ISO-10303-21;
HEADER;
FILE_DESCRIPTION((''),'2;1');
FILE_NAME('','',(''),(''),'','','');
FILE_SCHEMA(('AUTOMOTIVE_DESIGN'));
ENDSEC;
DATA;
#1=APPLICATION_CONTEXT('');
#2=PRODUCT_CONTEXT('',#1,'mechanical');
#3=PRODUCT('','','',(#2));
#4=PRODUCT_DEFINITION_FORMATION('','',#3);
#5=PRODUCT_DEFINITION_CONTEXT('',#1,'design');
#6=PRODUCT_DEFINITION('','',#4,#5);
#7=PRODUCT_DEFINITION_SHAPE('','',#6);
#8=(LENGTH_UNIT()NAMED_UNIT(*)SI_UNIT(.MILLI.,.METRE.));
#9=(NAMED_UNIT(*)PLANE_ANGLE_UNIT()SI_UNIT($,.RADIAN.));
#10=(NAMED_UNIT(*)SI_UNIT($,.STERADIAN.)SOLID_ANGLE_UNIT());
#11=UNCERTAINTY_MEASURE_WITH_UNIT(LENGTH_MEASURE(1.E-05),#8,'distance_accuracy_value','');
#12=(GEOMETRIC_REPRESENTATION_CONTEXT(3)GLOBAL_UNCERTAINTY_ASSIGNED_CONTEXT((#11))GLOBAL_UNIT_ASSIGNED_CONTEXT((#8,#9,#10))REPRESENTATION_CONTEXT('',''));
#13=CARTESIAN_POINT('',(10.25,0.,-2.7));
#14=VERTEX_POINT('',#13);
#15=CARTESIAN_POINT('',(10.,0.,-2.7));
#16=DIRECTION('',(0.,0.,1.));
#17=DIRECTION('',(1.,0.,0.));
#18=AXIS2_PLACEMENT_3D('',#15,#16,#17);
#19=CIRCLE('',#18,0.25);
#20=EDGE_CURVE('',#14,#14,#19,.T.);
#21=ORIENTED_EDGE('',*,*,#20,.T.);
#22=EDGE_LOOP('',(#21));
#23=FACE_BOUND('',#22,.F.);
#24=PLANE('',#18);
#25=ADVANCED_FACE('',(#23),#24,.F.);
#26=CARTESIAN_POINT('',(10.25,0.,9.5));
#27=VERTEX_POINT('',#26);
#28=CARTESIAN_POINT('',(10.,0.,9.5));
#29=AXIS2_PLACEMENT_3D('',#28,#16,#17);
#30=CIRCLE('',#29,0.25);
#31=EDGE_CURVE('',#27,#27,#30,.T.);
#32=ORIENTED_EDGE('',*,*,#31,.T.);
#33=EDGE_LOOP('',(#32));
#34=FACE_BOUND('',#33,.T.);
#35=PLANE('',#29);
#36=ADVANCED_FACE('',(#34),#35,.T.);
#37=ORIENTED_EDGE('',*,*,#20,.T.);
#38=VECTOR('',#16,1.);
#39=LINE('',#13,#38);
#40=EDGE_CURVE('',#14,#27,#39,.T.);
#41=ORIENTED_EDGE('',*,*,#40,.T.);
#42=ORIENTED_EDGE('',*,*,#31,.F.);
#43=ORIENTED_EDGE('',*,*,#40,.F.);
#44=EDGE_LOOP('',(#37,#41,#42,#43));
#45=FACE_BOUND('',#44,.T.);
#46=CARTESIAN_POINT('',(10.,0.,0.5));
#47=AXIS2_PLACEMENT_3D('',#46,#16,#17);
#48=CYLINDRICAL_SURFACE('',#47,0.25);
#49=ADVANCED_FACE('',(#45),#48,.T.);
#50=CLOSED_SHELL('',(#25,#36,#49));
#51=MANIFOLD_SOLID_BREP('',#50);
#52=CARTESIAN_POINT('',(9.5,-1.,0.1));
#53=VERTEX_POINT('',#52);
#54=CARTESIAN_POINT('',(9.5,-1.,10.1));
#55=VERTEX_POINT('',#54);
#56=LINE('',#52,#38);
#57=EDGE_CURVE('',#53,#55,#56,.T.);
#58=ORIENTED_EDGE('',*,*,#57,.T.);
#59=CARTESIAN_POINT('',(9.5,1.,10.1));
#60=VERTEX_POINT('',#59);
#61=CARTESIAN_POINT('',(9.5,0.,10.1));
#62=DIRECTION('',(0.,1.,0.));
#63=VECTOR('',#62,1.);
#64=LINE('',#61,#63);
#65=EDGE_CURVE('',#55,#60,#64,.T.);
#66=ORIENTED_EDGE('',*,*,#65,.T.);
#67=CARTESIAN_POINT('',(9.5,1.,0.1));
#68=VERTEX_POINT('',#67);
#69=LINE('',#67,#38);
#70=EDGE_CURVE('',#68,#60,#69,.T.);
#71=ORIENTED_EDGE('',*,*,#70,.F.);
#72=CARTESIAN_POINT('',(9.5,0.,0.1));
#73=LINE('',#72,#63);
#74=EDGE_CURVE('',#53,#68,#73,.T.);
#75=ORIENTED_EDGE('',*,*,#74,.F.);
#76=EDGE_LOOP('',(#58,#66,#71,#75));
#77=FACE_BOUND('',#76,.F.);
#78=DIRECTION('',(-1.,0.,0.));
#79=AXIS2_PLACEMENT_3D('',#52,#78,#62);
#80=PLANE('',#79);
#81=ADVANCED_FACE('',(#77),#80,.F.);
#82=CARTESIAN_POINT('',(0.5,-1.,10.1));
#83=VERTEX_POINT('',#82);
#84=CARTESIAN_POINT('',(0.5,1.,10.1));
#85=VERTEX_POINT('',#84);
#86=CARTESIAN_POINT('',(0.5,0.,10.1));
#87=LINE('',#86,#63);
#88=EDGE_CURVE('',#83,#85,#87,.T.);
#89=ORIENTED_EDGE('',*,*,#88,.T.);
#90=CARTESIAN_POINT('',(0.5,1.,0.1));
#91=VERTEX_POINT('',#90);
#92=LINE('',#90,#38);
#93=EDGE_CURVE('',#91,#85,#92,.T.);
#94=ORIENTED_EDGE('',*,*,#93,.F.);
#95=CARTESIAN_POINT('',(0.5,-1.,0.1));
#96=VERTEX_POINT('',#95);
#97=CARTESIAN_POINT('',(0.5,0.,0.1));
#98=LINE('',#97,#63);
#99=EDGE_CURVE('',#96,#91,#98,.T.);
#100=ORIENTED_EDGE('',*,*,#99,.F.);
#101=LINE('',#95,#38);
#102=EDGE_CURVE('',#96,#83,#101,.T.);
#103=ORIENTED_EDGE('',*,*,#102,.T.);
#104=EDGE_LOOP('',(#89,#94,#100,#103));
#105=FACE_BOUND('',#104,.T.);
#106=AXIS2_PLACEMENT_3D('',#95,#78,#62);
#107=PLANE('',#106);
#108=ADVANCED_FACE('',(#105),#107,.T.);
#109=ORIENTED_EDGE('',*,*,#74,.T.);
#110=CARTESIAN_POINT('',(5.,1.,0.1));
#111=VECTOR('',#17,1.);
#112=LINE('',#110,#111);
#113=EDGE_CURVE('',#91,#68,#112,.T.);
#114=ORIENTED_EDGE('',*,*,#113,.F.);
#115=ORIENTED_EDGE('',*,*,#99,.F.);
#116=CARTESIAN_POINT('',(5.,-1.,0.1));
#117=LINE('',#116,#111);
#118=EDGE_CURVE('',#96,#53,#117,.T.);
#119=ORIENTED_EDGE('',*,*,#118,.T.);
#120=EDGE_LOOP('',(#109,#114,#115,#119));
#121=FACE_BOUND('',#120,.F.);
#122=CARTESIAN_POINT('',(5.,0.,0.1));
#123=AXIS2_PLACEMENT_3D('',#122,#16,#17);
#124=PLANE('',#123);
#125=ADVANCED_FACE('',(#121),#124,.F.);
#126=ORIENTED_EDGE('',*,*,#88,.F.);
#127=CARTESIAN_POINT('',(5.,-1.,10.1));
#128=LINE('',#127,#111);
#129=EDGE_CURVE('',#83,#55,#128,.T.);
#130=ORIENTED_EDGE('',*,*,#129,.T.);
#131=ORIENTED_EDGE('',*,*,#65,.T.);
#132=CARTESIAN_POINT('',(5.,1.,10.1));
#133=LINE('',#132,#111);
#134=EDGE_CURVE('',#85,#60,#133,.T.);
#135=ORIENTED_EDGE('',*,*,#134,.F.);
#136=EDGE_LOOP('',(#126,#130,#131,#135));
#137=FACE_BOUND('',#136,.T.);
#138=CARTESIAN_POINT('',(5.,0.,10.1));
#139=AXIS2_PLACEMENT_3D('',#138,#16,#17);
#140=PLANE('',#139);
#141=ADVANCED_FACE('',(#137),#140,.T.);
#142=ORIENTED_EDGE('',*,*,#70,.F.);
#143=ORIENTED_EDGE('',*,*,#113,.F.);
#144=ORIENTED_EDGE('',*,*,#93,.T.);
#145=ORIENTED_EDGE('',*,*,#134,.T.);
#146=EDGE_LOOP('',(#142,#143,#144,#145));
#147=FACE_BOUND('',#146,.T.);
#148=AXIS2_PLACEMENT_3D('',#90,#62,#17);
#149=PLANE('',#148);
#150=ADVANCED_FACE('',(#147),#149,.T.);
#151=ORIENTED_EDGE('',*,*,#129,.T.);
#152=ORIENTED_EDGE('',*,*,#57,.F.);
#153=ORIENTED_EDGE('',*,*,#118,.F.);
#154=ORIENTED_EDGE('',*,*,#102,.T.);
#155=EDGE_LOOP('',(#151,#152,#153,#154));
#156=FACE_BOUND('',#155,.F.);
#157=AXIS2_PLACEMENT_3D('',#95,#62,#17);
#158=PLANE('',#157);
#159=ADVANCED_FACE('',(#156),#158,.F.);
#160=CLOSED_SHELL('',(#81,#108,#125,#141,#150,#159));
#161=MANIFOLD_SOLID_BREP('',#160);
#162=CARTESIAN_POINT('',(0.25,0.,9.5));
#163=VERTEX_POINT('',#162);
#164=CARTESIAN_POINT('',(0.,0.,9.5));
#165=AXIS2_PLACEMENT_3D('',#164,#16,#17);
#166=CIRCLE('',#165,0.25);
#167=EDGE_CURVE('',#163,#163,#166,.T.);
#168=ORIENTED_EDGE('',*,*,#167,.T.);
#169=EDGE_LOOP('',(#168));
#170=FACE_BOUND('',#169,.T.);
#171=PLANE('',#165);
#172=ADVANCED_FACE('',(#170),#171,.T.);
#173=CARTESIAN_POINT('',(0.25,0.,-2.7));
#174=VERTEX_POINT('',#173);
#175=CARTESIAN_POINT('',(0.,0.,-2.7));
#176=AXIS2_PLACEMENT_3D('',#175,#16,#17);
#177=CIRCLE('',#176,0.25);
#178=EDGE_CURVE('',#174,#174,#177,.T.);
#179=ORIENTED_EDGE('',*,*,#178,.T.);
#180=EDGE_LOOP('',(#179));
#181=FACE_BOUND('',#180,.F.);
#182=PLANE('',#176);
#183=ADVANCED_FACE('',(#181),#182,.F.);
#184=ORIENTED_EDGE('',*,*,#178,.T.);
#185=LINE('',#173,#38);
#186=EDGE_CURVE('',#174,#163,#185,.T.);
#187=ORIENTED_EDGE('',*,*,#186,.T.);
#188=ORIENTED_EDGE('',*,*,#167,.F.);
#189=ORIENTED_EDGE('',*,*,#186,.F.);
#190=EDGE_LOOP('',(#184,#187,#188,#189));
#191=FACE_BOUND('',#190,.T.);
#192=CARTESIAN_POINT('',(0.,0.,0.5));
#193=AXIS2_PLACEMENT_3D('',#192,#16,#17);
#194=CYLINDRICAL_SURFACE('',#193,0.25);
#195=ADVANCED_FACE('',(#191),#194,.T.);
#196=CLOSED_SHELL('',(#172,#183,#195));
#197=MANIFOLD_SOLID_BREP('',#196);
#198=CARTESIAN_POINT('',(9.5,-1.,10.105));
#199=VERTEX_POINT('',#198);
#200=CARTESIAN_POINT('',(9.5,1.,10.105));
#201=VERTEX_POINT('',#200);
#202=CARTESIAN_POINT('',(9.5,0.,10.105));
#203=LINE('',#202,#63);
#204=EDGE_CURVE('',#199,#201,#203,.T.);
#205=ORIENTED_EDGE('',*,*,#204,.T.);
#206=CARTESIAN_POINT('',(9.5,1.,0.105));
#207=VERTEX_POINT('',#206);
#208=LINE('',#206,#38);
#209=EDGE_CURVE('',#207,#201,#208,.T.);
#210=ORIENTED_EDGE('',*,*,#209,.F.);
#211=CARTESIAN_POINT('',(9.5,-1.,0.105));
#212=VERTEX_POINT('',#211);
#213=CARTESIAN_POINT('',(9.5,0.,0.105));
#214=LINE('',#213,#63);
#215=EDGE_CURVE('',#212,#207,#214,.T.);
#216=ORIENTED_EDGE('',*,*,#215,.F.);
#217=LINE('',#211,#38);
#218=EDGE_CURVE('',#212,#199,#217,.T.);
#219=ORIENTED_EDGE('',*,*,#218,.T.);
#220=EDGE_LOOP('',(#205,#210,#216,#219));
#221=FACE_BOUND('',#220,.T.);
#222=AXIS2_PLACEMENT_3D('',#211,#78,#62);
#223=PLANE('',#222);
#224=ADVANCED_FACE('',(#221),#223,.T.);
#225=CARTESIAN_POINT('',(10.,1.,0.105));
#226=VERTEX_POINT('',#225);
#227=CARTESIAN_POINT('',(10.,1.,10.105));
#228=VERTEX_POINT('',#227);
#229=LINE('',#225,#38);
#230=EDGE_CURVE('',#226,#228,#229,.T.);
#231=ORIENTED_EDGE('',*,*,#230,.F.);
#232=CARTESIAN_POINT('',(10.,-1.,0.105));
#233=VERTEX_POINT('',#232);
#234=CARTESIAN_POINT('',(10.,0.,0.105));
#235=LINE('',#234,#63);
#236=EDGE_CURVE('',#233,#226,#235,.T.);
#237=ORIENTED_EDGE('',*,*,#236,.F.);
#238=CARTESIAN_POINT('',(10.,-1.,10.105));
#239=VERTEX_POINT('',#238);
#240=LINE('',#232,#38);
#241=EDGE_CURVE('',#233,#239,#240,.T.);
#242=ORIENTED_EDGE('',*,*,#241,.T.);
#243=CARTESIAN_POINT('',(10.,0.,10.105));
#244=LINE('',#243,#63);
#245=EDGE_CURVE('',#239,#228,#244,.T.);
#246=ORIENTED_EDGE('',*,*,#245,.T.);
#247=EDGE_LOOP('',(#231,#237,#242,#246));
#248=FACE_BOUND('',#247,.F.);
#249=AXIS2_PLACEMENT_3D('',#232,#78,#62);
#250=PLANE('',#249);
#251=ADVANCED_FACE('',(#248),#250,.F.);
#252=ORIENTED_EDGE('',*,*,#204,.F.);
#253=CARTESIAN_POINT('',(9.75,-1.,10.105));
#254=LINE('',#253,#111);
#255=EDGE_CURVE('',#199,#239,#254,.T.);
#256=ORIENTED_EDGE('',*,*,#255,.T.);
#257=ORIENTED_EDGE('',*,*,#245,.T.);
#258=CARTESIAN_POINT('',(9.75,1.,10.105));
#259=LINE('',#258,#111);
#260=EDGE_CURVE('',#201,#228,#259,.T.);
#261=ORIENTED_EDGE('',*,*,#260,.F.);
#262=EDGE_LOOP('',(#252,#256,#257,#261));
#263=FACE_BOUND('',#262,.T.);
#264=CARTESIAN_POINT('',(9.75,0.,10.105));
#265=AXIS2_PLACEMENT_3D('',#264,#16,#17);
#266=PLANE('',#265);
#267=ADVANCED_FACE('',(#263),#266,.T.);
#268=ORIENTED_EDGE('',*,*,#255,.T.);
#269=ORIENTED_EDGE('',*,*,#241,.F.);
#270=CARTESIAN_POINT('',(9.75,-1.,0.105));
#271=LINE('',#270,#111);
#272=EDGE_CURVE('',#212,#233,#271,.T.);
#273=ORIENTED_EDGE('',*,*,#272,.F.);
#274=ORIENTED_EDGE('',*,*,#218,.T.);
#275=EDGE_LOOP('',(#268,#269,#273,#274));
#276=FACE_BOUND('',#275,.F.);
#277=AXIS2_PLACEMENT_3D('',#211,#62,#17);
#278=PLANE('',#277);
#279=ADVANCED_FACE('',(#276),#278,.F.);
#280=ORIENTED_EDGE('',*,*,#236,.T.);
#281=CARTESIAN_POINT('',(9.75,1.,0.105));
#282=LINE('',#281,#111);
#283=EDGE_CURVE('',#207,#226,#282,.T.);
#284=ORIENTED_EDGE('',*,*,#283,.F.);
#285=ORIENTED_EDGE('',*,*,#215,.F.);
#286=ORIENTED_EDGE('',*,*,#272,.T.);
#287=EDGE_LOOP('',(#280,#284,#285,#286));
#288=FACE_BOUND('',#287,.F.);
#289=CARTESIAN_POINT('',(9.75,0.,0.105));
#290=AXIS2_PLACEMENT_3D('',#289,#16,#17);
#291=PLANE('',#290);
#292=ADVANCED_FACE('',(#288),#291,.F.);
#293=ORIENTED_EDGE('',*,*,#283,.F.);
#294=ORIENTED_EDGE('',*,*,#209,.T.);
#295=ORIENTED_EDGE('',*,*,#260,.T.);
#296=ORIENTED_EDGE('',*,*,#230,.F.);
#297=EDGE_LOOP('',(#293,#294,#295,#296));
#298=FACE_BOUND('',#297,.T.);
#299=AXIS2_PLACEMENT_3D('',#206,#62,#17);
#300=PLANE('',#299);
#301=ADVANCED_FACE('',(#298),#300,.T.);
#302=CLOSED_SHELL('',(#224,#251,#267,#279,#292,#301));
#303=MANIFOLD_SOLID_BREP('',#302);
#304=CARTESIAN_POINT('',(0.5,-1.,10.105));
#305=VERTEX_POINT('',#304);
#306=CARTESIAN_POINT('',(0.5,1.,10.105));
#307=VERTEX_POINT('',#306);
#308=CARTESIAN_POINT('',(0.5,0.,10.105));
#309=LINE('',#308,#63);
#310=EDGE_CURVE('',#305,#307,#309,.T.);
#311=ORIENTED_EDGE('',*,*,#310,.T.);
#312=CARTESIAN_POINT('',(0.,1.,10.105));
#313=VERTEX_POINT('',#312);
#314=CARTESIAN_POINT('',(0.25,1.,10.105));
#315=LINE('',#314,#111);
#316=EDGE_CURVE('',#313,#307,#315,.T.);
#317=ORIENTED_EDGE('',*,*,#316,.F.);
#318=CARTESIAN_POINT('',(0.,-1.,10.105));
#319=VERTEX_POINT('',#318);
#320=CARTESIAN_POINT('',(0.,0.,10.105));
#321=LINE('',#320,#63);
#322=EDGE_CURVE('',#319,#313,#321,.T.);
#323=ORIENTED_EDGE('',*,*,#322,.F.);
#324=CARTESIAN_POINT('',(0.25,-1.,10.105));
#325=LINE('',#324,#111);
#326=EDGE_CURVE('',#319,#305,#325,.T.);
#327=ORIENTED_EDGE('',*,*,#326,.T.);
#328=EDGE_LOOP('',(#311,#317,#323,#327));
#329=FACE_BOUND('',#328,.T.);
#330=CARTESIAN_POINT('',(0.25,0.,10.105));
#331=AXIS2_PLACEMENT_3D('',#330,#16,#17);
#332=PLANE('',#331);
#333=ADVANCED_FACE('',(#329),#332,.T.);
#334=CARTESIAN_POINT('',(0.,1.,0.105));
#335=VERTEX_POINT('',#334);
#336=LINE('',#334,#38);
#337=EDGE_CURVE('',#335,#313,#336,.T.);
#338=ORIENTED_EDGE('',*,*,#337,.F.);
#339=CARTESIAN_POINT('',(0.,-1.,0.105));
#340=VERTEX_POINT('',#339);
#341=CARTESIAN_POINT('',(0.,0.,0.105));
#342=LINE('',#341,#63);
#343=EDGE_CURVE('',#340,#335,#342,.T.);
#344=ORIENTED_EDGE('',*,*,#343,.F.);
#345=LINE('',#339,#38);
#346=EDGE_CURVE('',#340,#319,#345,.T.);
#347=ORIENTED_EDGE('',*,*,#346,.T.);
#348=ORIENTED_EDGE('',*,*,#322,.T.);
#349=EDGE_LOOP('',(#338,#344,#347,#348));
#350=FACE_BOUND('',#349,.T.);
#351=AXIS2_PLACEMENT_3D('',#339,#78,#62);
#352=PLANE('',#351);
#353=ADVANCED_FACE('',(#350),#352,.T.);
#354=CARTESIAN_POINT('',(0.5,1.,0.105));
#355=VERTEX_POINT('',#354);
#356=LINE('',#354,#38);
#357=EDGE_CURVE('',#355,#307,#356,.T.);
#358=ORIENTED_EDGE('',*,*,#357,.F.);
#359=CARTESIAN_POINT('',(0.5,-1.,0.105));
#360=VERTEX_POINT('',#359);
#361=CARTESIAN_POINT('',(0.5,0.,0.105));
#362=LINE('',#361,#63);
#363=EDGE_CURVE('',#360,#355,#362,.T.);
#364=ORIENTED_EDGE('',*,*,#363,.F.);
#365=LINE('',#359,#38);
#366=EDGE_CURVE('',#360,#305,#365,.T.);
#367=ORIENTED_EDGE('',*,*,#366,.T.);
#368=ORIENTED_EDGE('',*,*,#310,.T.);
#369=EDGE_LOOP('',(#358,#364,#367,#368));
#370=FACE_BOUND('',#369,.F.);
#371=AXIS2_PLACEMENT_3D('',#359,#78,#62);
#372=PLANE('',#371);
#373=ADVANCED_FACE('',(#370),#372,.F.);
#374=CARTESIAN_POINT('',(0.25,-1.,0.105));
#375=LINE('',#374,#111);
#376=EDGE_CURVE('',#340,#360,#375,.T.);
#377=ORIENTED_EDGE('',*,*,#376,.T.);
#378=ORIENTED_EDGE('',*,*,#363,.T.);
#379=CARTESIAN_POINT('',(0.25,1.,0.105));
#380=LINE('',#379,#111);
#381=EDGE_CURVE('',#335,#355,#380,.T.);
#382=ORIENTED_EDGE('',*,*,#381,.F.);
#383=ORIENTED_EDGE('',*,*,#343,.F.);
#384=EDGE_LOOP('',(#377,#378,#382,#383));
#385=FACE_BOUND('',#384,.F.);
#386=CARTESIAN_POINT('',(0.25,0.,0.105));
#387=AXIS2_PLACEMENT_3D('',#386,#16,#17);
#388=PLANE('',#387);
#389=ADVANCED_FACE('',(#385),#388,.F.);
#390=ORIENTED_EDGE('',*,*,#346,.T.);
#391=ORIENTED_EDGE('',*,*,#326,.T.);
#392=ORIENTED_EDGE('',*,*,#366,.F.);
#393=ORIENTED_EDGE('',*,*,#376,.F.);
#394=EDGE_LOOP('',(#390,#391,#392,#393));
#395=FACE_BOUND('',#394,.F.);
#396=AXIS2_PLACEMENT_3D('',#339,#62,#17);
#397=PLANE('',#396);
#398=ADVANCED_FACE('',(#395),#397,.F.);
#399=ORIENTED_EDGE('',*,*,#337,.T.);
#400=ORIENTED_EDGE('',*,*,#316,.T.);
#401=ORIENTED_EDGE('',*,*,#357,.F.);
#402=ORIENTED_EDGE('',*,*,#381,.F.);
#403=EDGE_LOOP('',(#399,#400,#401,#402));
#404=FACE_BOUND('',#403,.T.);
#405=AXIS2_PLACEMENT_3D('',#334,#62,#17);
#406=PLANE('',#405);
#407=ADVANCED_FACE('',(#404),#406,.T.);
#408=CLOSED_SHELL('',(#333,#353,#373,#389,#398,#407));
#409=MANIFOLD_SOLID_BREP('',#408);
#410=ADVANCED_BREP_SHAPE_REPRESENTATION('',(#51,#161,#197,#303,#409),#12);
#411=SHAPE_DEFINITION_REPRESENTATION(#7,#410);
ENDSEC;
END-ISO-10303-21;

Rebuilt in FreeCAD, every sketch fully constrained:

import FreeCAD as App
import Part
import Sketcher
Q = App.Units.Quantity


def add_polygon(sketch, points):
    """Adds a closed chain of lines whose ends are joined by coincident constraints."""
    first, n = sketch.GeometryCount, len(points)
    for a, b in zip(points, points[1:] + points[:1]):
        sketch.addGeometry(Part.LineSegment(App.Vector(*a, 0), App.Vector(*b, 0)), False)
    for i in range(n):
        sketch.addConstraint(Sketcher.Constraint("Coincident", first + i, 2, first + (i + 1) % n, 1))

doc = App.newDocument("Part")
body = doc.addObject("PartDesign::Body", "Body")

# Sketch on XY plane
sketch1 = doc.addObject("Sketcher::SketchObject", "Sketch")
body.addObject(sketch1)
sketch1.AttachmentSupport = (doc.XY_Plane, [""])
sketch1.MapMode = "FlatFace"
sketch1.AttachmentOffset = App.Placement(App.Vector(0, 0, 0.1), App.Rotation())
add_polygon(sketch1, [(0.5, 1), (0.5, -1), (9.5, -1), (9.5, 1)])  # lines 0-3
sketch1.addConstraint(Sketcher.Constraint("Vertical", 0))
sketch1.addConstraint(Sketcher.Constraint("Horizontal", 1))
sketch1.addConstraint(Sketcher.Constraint("Vertical", 2))
sketch1.addConstraint(Sketcher.Constraint("Horizontal", 3))
sketch1.addConstraint(Sketcher.Constraint("DistanceX", 1, 1, 1, 2, Q("9 mm")))
sketch1.addConstraint(Sketcher.Constraint("DistanceY", 0, 2, 0, 1, Q("2 mm")))
sketch1.addConstraint(Sketcher.Constraint("DistanceY", 0, 2, -1, 1, Q("1 mm")))
sketch1.addConstraint(Sketcher.Constraint("DistanceX", -1, 1, 0, 2, Q("0.5 mm")))
pad1 = doc.addObject("PartDesign::Pad", "Pad")
body.addObject(pad1)
pad1.Profile = sketch1
pad1.Length = 10
body2 = doc.addObject("PartDesign::Body", "Body001")
body2.AllowCompound = True

# Sketch on XY plane
sketch2 = doc.addObject("Sketcher::SketchObject", "Sketch001")
body2.addObject(sketch2)
sketch2.AttachmentSupport = (doc.getObject("XY_Plane001"), [""])
sketch2.MapMode = "FlatFace"
sketch2.AttachmentOffset = App.Placement(App.Vector(0, 0, 0.5), App.Rotation())
sketch2.addGeometry(Part.Circle(App.Vector(0, 0, 0), App.Vector(0, 0, 1), 0.25), False)
sketch2.addGeometry(Part.Circle(App.Vector(10, 0, 0), App.Vector(0, 0, 1), 0.25), False)
sketch2.addConstraint(Sketcher.Constraint("Coincident", 0, 3, -1, 1))
sketch2.addConstraint(Sketcher.Constraint("Equal", 0, 1))
sketch2.addConstraint(Sketcher.Constraint("PointOnObject", 1, 3, -1))
sketch2.addConstraint(Sketcher.Constraint("Diameter", 0, Q("0.5 mm")))
sketch2.addConstraint(Sketcher.Constraint("DistanceX", -1, 1, 1, 3, Q("10 mm")))
pad2 = doc.addObject("PartDesign::Pad", "Pad001")
body2.addObject(pad2)
pad2.Profile = sketch2
pad2.Type = "TwoLengths"
pad2.Length = 9
pad2.Length2 = 3.2
body3 = doc.addObject("PartDesign::Body", "Body002")
body3.AllowCompound = True

# Sketch on XY plane
sketch3 = doc.addObject("Sketcher::SketchObject", "Sketch002")
body3.addObject(sketch3)
sketch3.AttachmentSupport = (doc.getObject("XY_Plane002"), [""])
sketch3.MapMode = "FlatFace"
sketch3.AttachmentOffset = App.Placement(App.Vector(0, 0, 0.105), App.Rotation())
add_polygon(sketch3, [(0, 1), (0, -1), (0.5, -1), (0.5, 1)])  # lines 0-3
add_polygon(sketch3, [(9.5, 1), (9.5, -1), (10, -1), (10, 1)])  # lines 4-7
sketch3.addConstraint(Sketcher.Constraint("Vertical", 0))
sketch3.addConstraint(Sketcher.Constraint("Horizontal", 1))
sketch3.addConstraint(Sketcher.Constraint("Vertical", 2))
sketch3.addConstraint(Sketcher.Constraint("Horizontal", 3))
sketch3.addConstraint(Sketcher.Constraint("Vertical", 4))
sketch3.addConstraint(Sketcher.Constraint("Horizontal", 5))
sketch3.addConstraint(Sketcher.Constraint("Vertical", 6))
sketch3.addConstraint(Sketcher.Constraint("Horizontal", 7))
sketch3.addConstraint(Sketcher.Constraint("Symmetric", 0, 2, 3, 2, -1, 1))
sketch3.addConstraint(Sketcher.Constraint("Horizontal", 1, 2, 4, 2))
sketch3.addConstraint(Sketcher.Constraint("Horizontal", 3, 2, 6, 2))
sketch3.addConstraint(Sketcher.Constraint("Equal", 3, 5))
sketch3.addConstraint(Sketcher.Constraint("DistanceY", 0, 2, 0, 1, Q("2 mm")))
sketch3.addConstraint(Sketcher.Constraint("DistanceX", 1, 1, 1, 2, Q("0.5 mm")))
sketch3.addConstraint(Sketcher.Constraint("DistanceX", -1, 1, 5, 2, Q("10 mm")))
pad3 = doc.addObject("PartDesign::Pad", "Pad002")
body3.addObject(pad3)
pad3.Profile = sketch3
pad3.Length = 10

doc.recompute()
